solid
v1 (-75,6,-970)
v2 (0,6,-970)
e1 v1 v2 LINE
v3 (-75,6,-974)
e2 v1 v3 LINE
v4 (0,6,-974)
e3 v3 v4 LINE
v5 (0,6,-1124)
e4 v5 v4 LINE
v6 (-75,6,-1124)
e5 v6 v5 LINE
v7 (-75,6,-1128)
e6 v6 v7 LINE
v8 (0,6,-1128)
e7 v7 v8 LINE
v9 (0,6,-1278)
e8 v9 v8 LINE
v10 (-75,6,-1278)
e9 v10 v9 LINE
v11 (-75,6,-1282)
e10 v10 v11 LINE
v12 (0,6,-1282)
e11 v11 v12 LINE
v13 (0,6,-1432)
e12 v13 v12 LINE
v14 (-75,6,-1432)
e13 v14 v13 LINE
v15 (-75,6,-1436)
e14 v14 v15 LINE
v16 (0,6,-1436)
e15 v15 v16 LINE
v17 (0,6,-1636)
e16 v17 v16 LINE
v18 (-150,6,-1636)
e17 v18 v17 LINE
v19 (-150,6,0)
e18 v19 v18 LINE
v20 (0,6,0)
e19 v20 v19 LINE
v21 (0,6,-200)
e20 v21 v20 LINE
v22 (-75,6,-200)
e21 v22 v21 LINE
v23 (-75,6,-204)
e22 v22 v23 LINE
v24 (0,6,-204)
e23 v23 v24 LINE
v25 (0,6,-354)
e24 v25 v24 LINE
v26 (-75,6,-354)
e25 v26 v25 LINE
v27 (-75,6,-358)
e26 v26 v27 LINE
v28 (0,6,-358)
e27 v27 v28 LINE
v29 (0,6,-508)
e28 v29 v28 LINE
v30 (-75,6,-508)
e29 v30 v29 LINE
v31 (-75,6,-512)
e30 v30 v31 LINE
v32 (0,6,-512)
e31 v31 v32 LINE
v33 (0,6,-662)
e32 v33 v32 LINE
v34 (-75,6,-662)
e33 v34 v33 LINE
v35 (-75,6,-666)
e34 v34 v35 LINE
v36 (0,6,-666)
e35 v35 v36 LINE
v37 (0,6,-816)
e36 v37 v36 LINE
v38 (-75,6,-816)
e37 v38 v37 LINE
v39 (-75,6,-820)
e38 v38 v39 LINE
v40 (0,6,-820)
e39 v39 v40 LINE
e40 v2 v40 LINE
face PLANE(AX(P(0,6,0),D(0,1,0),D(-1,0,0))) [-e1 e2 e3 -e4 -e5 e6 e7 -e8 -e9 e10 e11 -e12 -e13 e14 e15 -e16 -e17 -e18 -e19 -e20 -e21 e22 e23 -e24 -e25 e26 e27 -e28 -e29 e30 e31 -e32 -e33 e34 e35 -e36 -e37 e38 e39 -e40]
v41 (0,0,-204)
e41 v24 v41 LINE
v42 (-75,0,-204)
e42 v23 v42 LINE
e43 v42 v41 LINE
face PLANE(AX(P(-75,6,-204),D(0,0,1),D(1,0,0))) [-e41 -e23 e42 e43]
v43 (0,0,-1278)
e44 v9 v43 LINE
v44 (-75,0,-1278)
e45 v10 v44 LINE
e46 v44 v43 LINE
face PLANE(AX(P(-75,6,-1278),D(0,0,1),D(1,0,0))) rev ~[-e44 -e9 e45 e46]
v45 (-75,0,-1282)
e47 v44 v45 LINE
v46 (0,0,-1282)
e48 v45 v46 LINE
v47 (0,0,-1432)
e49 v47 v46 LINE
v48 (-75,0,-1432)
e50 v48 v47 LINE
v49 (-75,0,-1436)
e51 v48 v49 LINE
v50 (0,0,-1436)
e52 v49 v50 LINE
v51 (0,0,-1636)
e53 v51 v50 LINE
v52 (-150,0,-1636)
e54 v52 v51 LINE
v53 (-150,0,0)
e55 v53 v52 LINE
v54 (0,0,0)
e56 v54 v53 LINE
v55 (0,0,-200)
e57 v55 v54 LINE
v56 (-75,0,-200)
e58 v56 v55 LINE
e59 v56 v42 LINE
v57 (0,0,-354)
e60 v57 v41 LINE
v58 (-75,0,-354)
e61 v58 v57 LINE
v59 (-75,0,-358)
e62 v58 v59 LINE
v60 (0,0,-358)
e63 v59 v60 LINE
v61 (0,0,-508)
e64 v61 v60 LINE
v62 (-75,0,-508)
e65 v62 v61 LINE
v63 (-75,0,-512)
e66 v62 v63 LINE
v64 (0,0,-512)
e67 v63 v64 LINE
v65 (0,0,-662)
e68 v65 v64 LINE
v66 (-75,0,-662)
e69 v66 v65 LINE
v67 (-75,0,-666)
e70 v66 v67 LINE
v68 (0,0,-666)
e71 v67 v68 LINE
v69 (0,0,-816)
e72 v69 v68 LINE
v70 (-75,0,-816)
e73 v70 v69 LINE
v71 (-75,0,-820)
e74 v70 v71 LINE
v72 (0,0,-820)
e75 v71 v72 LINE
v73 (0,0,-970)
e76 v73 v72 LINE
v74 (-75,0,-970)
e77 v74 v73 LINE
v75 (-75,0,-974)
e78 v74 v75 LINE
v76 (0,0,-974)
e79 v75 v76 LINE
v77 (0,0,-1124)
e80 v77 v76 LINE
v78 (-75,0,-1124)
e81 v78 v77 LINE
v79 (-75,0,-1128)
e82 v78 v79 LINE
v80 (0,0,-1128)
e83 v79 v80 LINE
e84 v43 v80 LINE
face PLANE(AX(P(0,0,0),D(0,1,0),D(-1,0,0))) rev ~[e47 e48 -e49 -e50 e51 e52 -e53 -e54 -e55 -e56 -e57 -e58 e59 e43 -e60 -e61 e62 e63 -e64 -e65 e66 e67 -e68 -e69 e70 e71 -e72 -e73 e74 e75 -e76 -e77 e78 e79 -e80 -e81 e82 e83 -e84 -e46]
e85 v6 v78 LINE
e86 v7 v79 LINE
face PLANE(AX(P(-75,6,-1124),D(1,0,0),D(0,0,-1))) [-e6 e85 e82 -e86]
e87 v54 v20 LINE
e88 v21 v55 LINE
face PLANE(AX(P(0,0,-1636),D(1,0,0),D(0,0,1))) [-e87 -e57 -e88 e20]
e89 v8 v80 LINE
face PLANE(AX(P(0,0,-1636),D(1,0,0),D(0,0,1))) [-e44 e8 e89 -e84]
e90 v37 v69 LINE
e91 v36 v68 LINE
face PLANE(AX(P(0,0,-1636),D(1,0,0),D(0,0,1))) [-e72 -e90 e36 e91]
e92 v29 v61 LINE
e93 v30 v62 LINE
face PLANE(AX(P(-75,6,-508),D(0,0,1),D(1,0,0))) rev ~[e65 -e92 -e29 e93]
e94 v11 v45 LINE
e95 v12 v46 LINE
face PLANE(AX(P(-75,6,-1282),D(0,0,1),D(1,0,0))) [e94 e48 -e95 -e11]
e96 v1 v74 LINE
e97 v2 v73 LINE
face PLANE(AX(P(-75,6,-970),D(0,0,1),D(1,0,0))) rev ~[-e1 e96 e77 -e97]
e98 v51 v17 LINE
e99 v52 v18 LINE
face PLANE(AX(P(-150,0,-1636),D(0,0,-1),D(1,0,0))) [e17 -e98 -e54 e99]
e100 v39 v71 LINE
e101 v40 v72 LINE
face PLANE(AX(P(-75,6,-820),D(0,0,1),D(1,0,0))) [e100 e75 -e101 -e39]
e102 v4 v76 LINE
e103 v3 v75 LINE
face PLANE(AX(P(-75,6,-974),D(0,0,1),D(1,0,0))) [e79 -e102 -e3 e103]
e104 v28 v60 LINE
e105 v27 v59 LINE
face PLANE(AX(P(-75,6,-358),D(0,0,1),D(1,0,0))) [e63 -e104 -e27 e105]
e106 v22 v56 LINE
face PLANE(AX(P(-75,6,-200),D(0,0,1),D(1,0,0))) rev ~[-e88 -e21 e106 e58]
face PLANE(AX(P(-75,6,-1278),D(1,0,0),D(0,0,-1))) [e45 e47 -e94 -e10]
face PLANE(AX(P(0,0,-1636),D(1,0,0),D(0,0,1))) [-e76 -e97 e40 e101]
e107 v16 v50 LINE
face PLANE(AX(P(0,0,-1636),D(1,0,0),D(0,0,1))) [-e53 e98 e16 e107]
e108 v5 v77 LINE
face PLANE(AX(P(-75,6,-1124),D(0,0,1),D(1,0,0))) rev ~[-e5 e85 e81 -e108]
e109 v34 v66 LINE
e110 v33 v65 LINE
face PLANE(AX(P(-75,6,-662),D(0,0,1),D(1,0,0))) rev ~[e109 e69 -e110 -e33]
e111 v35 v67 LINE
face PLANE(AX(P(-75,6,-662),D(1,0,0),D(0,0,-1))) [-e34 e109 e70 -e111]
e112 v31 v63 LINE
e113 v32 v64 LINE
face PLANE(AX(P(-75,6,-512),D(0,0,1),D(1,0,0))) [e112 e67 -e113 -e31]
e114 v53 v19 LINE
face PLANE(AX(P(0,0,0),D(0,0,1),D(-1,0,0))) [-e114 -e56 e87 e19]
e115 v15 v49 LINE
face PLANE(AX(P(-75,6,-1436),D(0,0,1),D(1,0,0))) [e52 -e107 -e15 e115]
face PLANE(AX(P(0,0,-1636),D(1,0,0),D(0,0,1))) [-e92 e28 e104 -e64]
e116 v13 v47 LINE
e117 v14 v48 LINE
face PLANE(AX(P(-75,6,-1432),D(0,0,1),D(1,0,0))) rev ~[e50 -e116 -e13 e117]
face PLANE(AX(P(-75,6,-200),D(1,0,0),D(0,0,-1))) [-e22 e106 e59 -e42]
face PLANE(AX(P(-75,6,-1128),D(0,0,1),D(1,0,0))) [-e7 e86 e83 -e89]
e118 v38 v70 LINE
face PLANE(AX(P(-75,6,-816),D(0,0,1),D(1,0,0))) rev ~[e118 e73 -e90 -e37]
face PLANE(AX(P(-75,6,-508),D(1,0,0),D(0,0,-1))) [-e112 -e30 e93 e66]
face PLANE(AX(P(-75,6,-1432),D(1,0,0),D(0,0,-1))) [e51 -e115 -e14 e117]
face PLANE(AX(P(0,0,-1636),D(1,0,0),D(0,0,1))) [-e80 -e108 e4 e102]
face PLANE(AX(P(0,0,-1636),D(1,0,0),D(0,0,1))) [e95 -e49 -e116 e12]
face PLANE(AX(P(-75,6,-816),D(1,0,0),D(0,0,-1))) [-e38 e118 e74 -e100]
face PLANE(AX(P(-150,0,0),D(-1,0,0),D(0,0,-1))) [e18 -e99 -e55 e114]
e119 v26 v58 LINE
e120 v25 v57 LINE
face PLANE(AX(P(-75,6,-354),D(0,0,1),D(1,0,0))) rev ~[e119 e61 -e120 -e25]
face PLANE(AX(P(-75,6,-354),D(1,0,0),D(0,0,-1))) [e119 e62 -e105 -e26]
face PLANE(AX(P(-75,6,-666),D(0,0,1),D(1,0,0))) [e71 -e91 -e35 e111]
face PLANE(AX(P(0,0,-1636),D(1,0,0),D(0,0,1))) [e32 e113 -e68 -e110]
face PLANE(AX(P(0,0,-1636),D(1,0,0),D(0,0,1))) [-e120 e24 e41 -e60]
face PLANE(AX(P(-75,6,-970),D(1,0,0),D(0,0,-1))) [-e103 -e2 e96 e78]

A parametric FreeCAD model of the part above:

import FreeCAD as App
import Part
import Sketcher
from FreeCAD import Vector

doc = App.newDocument("Part")
params = doc.addObject("Spreadsheet::Sheet", "Params")
for row, (alias, value) in enumerate([
    ("sketch1_width", "150 mm"),
    ("sketch1_height", "1636 mm"),
    ("pad1_length", "6 mm"),
    ("sketch2_height", "4 mm"),
    ("sketch2_width", "75 mm"),
    ("pocket1_length", "6 mm"),
], start=1):
    params.set(f"A{row}", alias)
    params.set(f"B{row}", "=" + value)
    params.setAlias(f"B{row}", alias)

body = doc.addObject("PartDesign::Body", "Body")

sketch1 = doc.addObject("Sketcher::SketchObject", "Sketch")
body.addObject(sketch1)
sketch1.AttachmentSupport = (doc.XZ_Plane, [""])
sketch1.MapMode = "FlatFace"
sketch1.addGeometry([
    Part.LineSegment(Vector(-150, 0, 0), Vector(0, 0, 0)),
    Part.LineSegment(Vector(0, 0, 0), Vector(0, -1636, 0)),
    Part.LineSegment(Vector(0, -1636, 0), Vector(-150, -1636, 0)),
    Part.LineSegment(Vector(-150, -1636, 0), Vector(-150, 0, 0)),
], False)
sketch1.addConstraint([
    Sketcher.Constraint("Coincident", 0, 2, 1, 1),
    Sketcher.Constraint("Coincident", 1, 2, 2, 1),
    Sketcher.Constraint("Coincident", 2, 2, 3, 1),
    Sketcher.Constraint("Coincident", 3, 2, 0, 1),
    Sketcher.Constraint("Horizontal", 0),
    Sketcher.Constraint("Vertical", 1),
    Sketcher.Constraint("Horizontal", 2),
    Sketcher.Constraint("Vertical", 3),
    Sketcher.Constraint("Coincident", 0, 2, -1, 1),
    Sketcher.Constraint("DistanceX", 0, 1, 0, 2, 150.0),
    Sketcher.Constraint("DistanceY", 1, 2, 1, 1, 1636.0),
])
sketch1.setExpression("Constraints[9]", "Params.sketch1_width")
sketch1.setExpression("Constraints[10]", "Params.sketch1_height")
pad1 = doc.addObject("PartDesign::Pad", "Pad")
body.addObject(pad1)
pad1.Profile = sketch1
pad1.setExpression("Length", "Params.pad1_length")
pad1.Reversed = True

sketch2 = doc.addObject("Sketcher::SketchObject", "Sketch001")
body.addObject(sketch2)
sketch2.AttachmentSupport = (doc.XZ_Plane, [""])
sketch2.MapMode = "FlatFace"
sketch2.AttachmentOffset = App.Placement(Vector(0, 0, -6), App.Rotation())
sketch2.addGeometry([
    Part.LineSegment(Vector(-75, -204, 0), Vector(-75, -200, 0)),
    Part.LineSegment(Vector(-75, -200, 0), Vector(0, -200, 0)),
    Part.LineSegment(Vector(0, -200, 0), Vector(0, -204, 0)),
    Part.LineSegment(Vector(0, -204, 0), Vector(-75, -204, 0)),
    Part.LineSegment(Vector(-75, -1432, 0), Vector(0, -1432, 0)),
    Part.LineSegment(Vector(0, -1432, 0), Vector(0, -1436, 0)),
    Part.LineSegment(Vector(0, -1436, 0), Vector(-75, -1436, 0)),
    Part.LineSegment(Vector(-75, -1436, 0), Vector(-75, -1432, 0)),
    Part.LineSegment(Vector(-75, -1278, 0), Vector(0, -1278, 0)),
    Part.LineSegment(Vector(0, -1278, 0), Vector(0, -1282, 0)),
    Part.LineSegment(Vector(0, -1282, 0), Vector(-75, -1282, 0)),
    Part.LineSegment(Vector(-75, -1282, 0), Vector(-75, -1278, 0)),
    Part.LineSegment(Vector(-75, -1124, 0), Vector(0, -1124, 0)),
    Part.LineSegment(Vector(0, -1124, 0), Vector(0, -1128, 0)),
    Part.LineSegment(Vector(0, -1128, 0), Vector(-75, -1128, 0)),
    Part.LineSegment(Vector(-75, -1128, 0), Vector(-75, -1124, 0)),
    Part.LineSegment(Vector(-75, -970, 0), Vector(0, -970, 0)),
    Part.LineSegment(Vector(0, -970, 0), Vector(0, -974, 0)),
    Part.LineSegment(Vector(0, -974, 0), Vector(-75, -974, 0)),
    Part.LineSegment(Vector(-75, -974, 0), Vector(-75, -970, 0)),
    Part.LineSegment(Vector(-75, -816, 0), Vector(0, -816, 0)),
    Part.LineSegment(Vector(0, -816, 0), Vector(0, -820, 0)),
    Part.LineSegment(Vector(0, -820, 0), Vector(-75, -820, 0)),
    Part.LineSegment(Vector(-75, -820, 0), Vector(-75, -816, 0)),
    Part.LineSegment(Vector(-75, -662, 0), Vector(0, -662, 0)),
    Part.LineSegment(Vector(0, -662, 0), Vector(0, -666, 0)),
    Part.LineSegment(Vector(0, -666, 0), Vector(-75, -666, 0)),
    Part.LineSegment(Vector(-75, -666, 0), Vector(-75, -662, 0)),
    Part.LineSegment(Vector(-75, -508, 0), Vector(0, -508, 0)),
    Part.LineSegment(Vector(0, -508, 0), Vector(0, -512, 0)),
    Part.LineSegment(Vector(0, -512, 0), Vector(-75, -512, 0)),
    Part.LineSegment(Vector(-75, -512, 0), Vector(-75, -508, 0)),
    Part.LineSegment(Vector(-75, -354, 0), Vector(0, -354, 0)),
    Part.LineSegment(Vector(0, -354, 0), Vector(0, -358, 0)),
    Part.LineSegment(Vector(0, -358, 0), Vector(-75, -358, 0)),
    Part.LineSegment(Vector(-75, -358, 0), Vector(-75, -354, 0)),
], False)
sketch2.addConstraint([
    Sketcher.Constraint("Coincident", 0, 2, 1, 1),
    Sketcher.Constraint("Coincident", 1, 2, 2, 1),
    Sketcher.Constraint("Coincident", 2, 2, 3, 1),
    Sketcher.Constraint("Coincident", 3, 2, 0, 1),
    Sketcher.Constraint("Coincident", 4, 2, 5, 1),
    Sketcher.Constraint("Coincident", 5, 2, 6, 1),
    Sketcher.Constraint("Coincident", 6, 2, 7, 1),
    Sketcher.Constraint("Coincident", 7, 2, 4, 1),
    Sketcher.Constraint("Coincident", 8, 2, 9, 1),
    Sketcher.Constraint("Coincident", 9, 2, 10, 1),
    Sketcher.Constraint("Coincident", 10, 2, 11, 1),
    Sketcher.Constraint("Coincident", 11, 2, 8, 1),
    Sketcher.Constraint("Coincident", 12, 2, 13, 1),
    Sketcher.Constraint("Coincident", 13, 2, 14, 1),
    Sketcher.Constraint("Coincident", 14, 2, 15, 1),
    Sketcher.Constraint("Coincident", 15, 2, 12, 1),
    Sketcher.Constraint("Coincident", 16, 2, 17, 1),
    Sketcher.Constraint("Coincident", 17, 2, 18, 1),
    Sketcher.Constraint("Coincident", 18, 2, 19, 1),
    Sketcher.Constraint("Coincident", 19, 2, 16, 1),
    Sketcher.Constraint("Coincident", 20, 2, 21, 1),
    Sketcher.Constraint("Coincident", 21, 2, 22, 1),
    Sketcher.Constraint("Coincident", 22, 2, 23, 1),
    Sketcher.Constraint("Coincident", 23, 2, 20, 1),
    Sketcher.Constraint("Coincident", 24, 2, 25, 1),
    Sketcher.Constraint("Coincident", 25, 2, 26, 1),
    Sketcher.Constraint("Coincident", 26, 2, 27, 1),
    Sketcher.Constraint("Coincident", 27, 2, 24, 1),
    Sketcher.Constraint("Coincident", 28, 2, 29, 1),
    Sketcher.Constraint("Coincident", 29, 2, 30, 1),
    Sketcher.Constraint("Coincident", 30, 2, 31, 1),
    Sketcher.Constraint("Coincident", 31, 2, 28, 1),
    Sketcher.Constraint("Coincident", 32, 2, 33, 1),
    Sketcher.Constraint("Coincident", 33, 2, 34, 1),
    Sketcher.Constraint("Coincident", 34, 2, 35, 1),
    Sketcher.Constraint("Coincident", 35, 2, 32, 1),
    Sketcher.Constraint("Vertical", 0),
    Sketcher.Constraint("Horizontal", 1),
    Sketcher.Constraint("Vertical", 2),
    Sketcher.Constraint("Horizontal", 3),
    Sketcher.Constraint("Horizontal", 4),
    Sketcher.Constraint("Vertical", 5),
    Sketcher.Constraint("Horizontal", 6),
    Sketcher.Constraint("Vertical", 7),
    Sketcher.Constraint("Horizontal", 8),
    Sketcher.Constraint("Vertical", 9),
    Sketcher.Constraint("Horizontal", 10),
    Sketcher.Constraint("Vertical", 11),
    Sketcher.Constraint("Horizontal", 12),
    Sketcher.Constraint("Vertical", 13),
    Sketcher.Constraint("Horizontal", 14),
    Sketcher.Constraint("Vertical", 15),
    Sketcher.Constraint("Horizontal", 16),
    Sketcher.Constraint("Vertical", 17),
    Sketcher.Constraint("Horizontal", 18),
    Sketcher.Constraint("Vertical", 19),
    Sketcher.Constraint("Horizontal", 20),
    Sketcher.Constraint("Vertical", 21),
    Sketcher.Constraint("Horizontal", 22),
    Sketcher.Constraint("Vertical", 23),
    Sketcher.Constraint("Horizontal", 24),
    Sketcher.Constraint("Vertical", 25),
    Sketcher.Constraint("Horizontal", 26),
    Sketcher.Constraint("Vertical", 27),
    Sketcher.Constraint("Horizontal", 28),
    Sketcher.Constraint("Vertical", 29),
    Sketcher.Constraint("Horizontal", 30),
    Sketcher.Constraint("Vertical", 31),
    Sketcher.Constraint("Horizontal", 32),
    Sketcher.Constraint("Vertical", 33),
    Sketcher.Constraint("Horizontal", 34),
    Sketcher.Constraint("Vertical", 35),
    Sketcher.Constraint("PointOnObject", 1, 2, -2),
    Sketcher.Constraint("PointOnObject", 4, 2, -2),
    Sketcher.Constraint("PointOnObject", 8, 2, -2),
    Sketcher.Constraint("PointOnObject", 12, 2, -2),
    Sketcher.Constraint("PointOnObject", 16, 2, -2),
    Sketcher.Constraint("PointOnObject", 20, 2, -2),
    Sketcher.Constraint("PointOnObject", 24, 2, -2),
    Sketcher.Constraint("PointOnObject", 28, 2, -2),
    Sketcher.Constraint("PointOnObject", 32, 2, -2),
    Sketcher.Constraint("Vertical", 3, 2, 6, 2),
    Sketcher.Constraint("Vertical", 7, 2, 10, 2),
    Sketcher.Constraint("Vertical", 11, 2, 14, 2),
    Sketcher.Constraint("Vertical", 15, 2, 18, 2),
    Sketcher.Constraint("Vertical", 19, 2, 22, 2),
    Sketcher.Constraint("Vertical", 23, 2, 26, 2),
    Sketcher.Constraint("Vertical", 27, 2, 30, 2),
    Sketcher.Constraint("Vertical", 31, 2, 34, 2),
    Sketcher.Constraint("Equal", 2, 5),
    Sketcher.Constraint("Equal", 7, 9),
    Sketcher.Constraint("Equal", 11, 13),
    Sketcher.Constraint("Equal", 15, 17),
    Sketcher.Constraint("Equal", 19, 21),
    Sketcher.Constraint("Equal", 23, 25),
    Sketcher.Constraint("Equal", 27, 29),
    Sketcher.Constraint("Equal", 31, 33),
    Sketcher.Constraint("DistanceY", 0, 1, 0, 2, 4.0),
    Sketcher.Constraint("DistanceY", 0, 2, -1, 1, 200.0),
    Sketcher.Constraint("DistanceY", 4, 2, 9, 2, 150.0),
    Sketcher.Constraint("DistanceY", 8, 2, 13, 2, 150.0),
    Sketcher.Constraint("DistanceY", 12, 2, 17, 2, 150.0),
    Sketcher.Constraint("DistanceY", 16, 2, 21, 2, 150.0),
    Sketcher.Constraint("DistanceY", 20, 2, 25, 2, 150.0),
    Sketcher.Constraint("DistanceY", 24, 2, 29, 2, 150.0),
    Sketcher.Constraint("DistanceY", 32, 2, 2, 2, 150.0),
    Sketcher.Constraint("DistanceY", 28, 2, 33, 2, 150.0),
    Sketcher.Constraint("DistanceX", 1, 1, 1, 2, 75.0),
])
sketch2.setExpression("Constraints[97]", "Params.sketch2_height")
sketch2.setExpression("Constraints[107]", "Params.sketch2_width")
pocket1 = doc.addObject("PartDesign::Pocket", "Pocket")
body.addObject(pocket1)
pocket1.Profile = sketch2
pocket1.setExpression("Length", "Params.pocket1_length")
pocket1.Reversed = True

doc.recompute()
